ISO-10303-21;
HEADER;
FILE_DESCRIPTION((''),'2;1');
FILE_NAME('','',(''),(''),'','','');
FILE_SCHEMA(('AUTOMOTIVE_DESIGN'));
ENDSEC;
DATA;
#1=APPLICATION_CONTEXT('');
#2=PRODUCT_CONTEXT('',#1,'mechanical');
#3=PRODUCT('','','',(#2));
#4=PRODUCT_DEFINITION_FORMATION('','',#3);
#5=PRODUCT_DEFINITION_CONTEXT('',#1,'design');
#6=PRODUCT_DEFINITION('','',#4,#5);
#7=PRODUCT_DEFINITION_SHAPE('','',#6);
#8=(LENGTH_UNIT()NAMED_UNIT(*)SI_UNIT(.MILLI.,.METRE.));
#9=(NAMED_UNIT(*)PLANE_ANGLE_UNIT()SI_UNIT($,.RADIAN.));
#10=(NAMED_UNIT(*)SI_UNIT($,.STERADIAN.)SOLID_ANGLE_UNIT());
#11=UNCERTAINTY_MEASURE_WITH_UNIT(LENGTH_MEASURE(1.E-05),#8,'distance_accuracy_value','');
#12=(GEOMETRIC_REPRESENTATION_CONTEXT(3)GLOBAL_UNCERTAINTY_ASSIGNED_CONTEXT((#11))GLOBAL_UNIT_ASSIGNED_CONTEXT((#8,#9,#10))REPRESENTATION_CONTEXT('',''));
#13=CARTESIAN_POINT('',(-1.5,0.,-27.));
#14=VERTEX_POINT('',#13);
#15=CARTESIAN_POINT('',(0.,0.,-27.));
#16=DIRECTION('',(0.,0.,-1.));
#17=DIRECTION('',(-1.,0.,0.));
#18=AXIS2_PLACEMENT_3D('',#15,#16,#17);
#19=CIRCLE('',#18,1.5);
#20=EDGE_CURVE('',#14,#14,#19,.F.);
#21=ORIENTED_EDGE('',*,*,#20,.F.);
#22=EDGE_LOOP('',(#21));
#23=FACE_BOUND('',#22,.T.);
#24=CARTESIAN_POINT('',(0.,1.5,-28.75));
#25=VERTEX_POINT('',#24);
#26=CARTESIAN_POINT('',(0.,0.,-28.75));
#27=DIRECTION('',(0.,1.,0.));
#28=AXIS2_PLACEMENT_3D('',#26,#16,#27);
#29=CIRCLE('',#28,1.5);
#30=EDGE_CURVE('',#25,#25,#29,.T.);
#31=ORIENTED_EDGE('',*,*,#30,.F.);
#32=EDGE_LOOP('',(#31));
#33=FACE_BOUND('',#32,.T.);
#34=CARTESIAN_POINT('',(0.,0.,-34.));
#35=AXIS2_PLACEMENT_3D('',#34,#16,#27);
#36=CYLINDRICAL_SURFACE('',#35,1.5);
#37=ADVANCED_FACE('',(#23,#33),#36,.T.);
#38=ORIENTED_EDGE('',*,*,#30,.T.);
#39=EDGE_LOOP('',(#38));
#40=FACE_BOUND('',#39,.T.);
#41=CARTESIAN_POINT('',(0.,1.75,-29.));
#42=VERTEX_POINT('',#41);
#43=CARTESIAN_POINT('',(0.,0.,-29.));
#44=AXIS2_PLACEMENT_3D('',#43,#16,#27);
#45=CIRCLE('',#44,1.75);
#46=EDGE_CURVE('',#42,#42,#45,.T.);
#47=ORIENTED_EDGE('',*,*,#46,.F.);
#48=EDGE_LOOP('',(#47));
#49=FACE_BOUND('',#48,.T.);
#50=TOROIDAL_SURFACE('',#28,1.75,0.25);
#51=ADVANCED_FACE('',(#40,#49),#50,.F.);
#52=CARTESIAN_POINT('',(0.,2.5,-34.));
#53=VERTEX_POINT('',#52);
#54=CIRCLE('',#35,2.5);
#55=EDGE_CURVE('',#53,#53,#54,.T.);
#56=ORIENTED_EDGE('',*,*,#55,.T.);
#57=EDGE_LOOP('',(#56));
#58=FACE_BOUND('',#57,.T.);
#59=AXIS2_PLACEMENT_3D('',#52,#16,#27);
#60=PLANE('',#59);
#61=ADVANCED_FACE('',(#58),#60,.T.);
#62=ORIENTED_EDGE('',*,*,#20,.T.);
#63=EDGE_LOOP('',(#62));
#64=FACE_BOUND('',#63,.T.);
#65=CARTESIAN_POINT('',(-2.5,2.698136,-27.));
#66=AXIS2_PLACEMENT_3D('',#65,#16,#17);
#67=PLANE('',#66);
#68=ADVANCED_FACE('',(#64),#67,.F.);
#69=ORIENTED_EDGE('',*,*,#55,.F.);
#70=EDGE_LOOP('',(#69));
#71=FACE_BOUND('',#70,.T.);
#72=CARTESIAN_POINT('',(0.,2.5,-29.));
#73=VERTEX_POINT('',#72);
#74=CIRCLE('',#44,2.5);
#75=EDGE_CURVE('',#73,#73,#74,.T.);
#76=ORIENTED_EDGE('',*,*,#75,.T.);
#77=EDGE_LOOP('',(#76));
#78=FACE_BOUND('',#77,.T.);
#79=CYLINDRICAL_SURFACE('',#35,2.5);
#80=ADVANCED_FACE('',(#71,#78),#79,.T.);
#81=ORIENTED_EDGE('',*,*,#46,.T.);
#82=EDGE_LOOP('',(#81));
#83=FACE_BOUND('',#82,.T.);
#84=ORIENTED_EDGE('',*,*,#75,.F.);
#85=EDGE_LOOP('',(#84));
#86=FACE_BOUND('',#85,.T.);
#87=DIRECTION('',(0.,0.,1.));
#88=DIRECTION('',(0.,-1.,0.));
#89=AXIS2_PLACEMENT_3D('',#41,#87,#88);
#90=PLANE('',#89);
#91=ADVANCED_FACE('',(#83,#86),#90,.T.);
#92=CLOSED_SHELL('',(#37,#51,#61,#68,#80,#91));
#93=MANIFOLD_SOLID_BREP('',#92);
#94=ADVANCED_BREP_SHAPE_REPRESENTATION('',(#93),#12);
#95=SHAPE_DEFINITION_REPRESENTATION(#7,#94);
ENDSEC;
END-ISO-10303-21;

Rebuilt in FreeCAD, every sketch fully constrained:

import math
import FreeCAD as App
import Part
import Sketcher
Q = App.Units.Quantity


def add_polygon(sketch, points):
    """Adds a closed chain of lines whose ends are joined by coincident constraints."""
    first, n = sketch.GeometryCount, len(points)
    for a, b in zip(points, points[1:] + points[:1]):
        sketch.addGeometry(Part.LineSegment(App.Vector(*a, 0), App.Vector(*b, 0)), False)
    for i in range(n):
        sketch.addConstraint(Sketcher.Constraint("Coincident", first + i, 2, first + (i + 1) % n, 1))

doc = App.newDocument("Part")
body = doc.addObject("PartDesign::Body", "Body")

sketch1 = body.newObject("Sketcher::SketchObject", "Sketch")
sketch1.AttachmentSupport = (doc.getObject("YZ_Plane"), [""])
sketch1.MapMode = "FlatFace"
sketch1.addGeometry(Part.LineSegment(App.Vector(1.5, -28.75, 0), App.Vector(1.5, 29, 0)), False)
sketch1.addGeometry(Part.LineSegment(App.Vector(1.5, 29, 0), App.Vector(0, 29, 0)), False)
sketch1.addGeometry(Part.LineSegment(App.Vector(0, 29, 0), App.Vector(0, -34, 0)), False)
sketch1.addGeometry(Part.LineSegment(App.Vector(0, -34, 0), App.Vector(2.5, -34, 0)), False)
sketch1.addGeometry(Part.LineSegment(App.Vector(2.5, -34, 0), App.Vector(2.5, -29, 0)), False)
sketch1.addGeometry(Part.LineSegment(App.Vector(2.5, -29, 0), App.Vector(1.75, -29, 0)), False)
sketch1.addGeometry(Part.ArcOfCircle(Part.Circle(App.Vector(1.75, -28.75, 0), App.Vector(0, 0, 1), 0.25), math.radians(-180), math.radians(-90)), False)
sketch1.addConstraint(Sketcher.Constraint("Coincident", 0, 2, 1, 1))
sketch1.addConstraint(Sketcher.Constraint("Coincident", 1, 2, 2, 1))
sketch1.addConstraint(Sketcher.Constraint("Coincident", 2, 2, 3, 1))
sketch1.addConstraint(Sketcher.Constraint("Coincident", 3, 2, 4, 1))
sketch1.addConstraint(Sketcher.Constraint("Coincident", 4, 2, 5, 1))
sketch1.addConstraint(Sketcher.Constraint("Tangent", 5, 2, 6, 2))
sketch1.addConstraint(Sketcher.Constraint("Tangent", 6, 1, 0, 1))
sketch1.addConstraint(Sketcher.Constraint("Vertical", 0))
sketch1.addConstraint(Sketcher.Constraint("Horizontal", 1))
sketch1.addConstraint(Sketcher.Constraint("Vertical", 2))
sketch1.addConstraint(Sketcher.Constraint("Horizontal", 3))
sketch1.addConstraint(Sketcher.Constraint("Vertical", 4))
sketch1.addConstraint(Sketcher.Constraint("Horizontal", 5))
sketch1.addConstraint(Sketcher.Constraint("PointOnObject", 1, 2, -2))
sketch1.addConstraint(Sketcher.Constraint("DistanceY", 2, 2, 2, 1, Q("63 mm")))
sketch1.addConstraint(Sketcher.Constraint("DistanceY", 4, 1, 4, 2, Q("5 mm")))
sketch1.addConstraint(Sketcher.Constraint("Radius", 6, Q("0.25 mm")))
sketch1.addConstraint(Sketcher.Constraint("DistanceX", 1, 2, 1, 1, Q("1.5 mm")))
sketch1.addConstraint(Sketcher.Constraint("DistanceX", 3, 1, 3, 2, Q("2.5 mm")))
sketch1.addConstraint(Sketcher.Constraint("DistanceY", -1, 1, 0, 2, Q("29 mm")))
revolution = body.newObject("PartDesign::Revolution", "Revolution")
revolution.Profile = sketch1
revolution.ReferenceAxis = (sketch1, ["V_Axis"])
revolution.Angle = 360

sketch2 = body.newObject("Sketcher::SketchObject", "Sketch001")
sketch2.AttachmentSupport = (doc.getObject("YZ_Plane"), [""])
sketch2.MapMode = "FlatFace"
add_polygon(sketch2, [(3, 30), (-3, 30), (-3, -27), (3, -27)])
sketch2.addConstraint(Sketcher.Constraint("Horizontal", 0))
sketch2.addConstraint(Sketcher.Constraint("Vertical", 1))
sketch2.addConstraint(Sketcher.Constraint("Horizontal", 2))
sketch2.addConstraint(Sketcher.Constraint("Vertical", 3))
sketch2.addConstraint(Sketcher.Constraint("DistanceY", 1, 2, -1, 1, Q("27 mm")))
sketch2.addConstraint(Sketcher.Constraint("DistanceX", 0, 2, 0, 1, Q("5.287178 mm")))
sketch2.addConstraint(Sketcher.Constraint("DistanceY", 1, 2, 1, 1, Q("57.459304 mm")))
sketch2.addConstraint(Sketcher.Constraint("DistanceX", 0, 2, -1, 1, Q("2.589043 mm")))
pocket1 = body.newObject("PartDesign::Pocket", "Pocket")
pocket1.Profile = sketch2
pocket1.Type = "ThroughAll"
pocket1.Midplane = True

doc.recompute()
